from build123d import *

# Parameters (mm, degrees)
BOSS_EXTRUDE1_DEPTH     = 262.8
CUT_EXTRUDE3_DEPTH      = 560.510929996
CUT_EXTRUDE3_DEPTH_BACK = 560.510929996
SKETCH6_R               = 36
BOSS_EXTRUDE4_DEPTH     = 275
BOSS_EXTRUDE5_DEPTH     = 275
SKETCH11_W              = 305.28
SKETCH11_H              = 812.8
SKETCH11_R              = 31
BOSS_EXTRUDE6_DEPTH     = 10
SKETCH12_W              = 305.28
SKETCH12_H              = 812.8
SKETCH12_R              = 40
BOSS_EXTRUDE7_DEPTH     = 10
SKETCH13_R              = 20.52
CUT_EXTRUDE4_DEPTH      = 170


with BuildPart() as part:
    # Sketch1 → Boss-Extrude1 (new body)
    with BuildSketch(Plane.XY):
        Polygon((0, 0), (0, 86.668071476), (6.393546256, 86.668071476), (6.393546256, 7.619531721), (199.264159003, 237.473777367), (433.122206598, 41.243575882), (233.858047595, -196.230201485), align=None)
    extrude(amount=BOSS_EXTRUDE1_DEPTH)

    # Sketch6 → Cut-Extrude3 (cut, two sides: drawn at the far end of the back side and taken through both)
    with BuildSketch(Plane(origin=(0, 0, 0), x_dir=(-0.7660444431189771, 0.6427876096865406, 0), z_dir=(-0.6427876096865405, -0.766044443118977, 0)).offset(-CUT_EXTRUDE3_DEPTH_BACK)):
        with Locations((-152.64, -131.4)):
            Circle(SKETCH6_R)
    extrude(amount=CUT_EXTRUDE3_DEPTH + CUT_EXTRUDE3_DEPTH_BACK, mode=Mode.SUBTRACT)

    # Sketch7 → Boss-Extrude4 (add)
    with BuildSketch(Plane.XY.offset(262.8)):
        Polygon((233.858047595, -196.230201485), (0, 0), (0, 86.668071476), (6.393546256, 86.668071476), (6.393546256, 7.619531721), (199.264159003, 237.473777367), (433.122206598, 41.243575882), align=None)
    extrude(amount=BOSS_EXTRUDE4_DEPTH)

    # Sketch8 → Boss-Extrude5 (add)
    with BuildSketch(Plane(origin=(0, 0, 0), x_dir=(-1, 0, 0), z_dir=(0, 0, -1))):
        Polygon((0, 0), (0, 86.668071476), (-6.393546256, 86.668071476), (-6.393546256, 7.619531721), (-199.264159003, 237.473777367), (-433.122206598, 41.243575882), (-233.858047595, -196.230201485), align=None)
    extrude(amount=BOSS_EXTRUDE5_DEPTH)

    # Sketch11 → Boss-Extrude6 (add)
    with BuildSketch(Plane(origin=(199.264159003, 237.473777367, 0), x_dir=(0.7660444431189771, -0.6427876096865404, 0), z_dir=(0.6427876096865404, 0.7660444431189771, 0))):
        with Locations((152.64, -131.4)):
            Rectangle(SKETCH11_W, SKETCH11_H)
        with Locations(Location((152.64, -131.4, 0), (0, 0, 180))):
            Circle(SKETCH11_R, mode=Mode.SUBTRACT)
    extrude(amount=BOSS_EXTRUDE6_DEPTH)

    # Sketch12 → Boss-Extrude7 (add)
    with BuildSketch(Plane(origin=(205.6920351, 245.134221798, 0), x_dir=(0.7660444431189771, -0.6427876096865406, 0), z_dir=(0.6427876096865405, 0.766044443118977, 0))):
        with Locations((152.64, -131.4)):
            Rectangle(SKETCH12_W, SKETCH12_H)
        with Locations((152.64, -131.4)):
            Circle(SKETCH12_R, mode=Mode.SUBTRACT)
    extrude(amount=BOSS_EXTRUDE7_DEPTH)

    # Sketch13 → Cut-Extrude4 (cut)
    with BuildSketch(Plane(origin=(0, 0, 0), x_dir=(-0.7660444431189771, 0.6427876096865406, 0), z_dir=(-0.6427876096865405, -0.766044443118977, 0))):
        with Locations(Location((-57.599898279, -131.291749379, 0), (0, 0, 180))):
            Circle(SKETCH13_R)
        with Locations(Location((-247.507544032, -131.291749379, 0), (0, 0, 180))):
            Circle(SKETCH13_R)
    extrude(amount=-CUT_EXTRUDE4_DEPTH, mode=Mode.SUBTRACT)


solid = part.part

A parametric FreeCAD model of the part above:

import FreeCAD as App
import Part
import Sketcher

V = App.Vector
Q = App.Units.Quantity


def add_polygon(sketch, points):
    """Adds a closed chain of lines whose ends are joined by coincident constraints."""
    first, n = sketch.GeometryCount, len(points)
    for a, b in zip(points, points[1:] + points[:1]):
        sketch.addGeometry(Part.LineSegment(App.Vector(*a, 0), App.Vector(*b, 0)), False)
    for i in range(n):
        sketch.addConstraint(Sketcher.Constraint("Coincident", first + i, 2, first + (i + 1) % n, 1))

doc = App.newDocument("Part")
body = doc.addObject("PartDesign::Body", "Body")

# Sketch on XY plane
sketch1 = doc.addObject("Sketcher::SketchObject", "Sketch")
body.addObject(sketch1)
sketch1.AttachmentSupport = (doc.XY_Plane, [""])
sketch1.MapMode = "FlatFace"
add_polygon(sketch1, [(0, 87), (0, 0), (234, -196), (433, 41), (199, 237), (6, 8), (6, 87)])  # lines 0-6
sketch1.addConstraint(Sketcher.Constraint("Vertical", 0))
sketch1.addConstraint(Sketcher.Constraint("Vertical", 5))
sketch1.addConstraint(Sketcher.Constraint("Horizontal", 6))
sketch1.addConstraint(Sketcher.Constraint("Coincident", 0, 2, -1, 1))
sketch1.addConstraint(Sketcher.Constraint("Perpendicular", 1, 2))
sketch1.addConstraint(Sketcher.Constraint("Perpendicular", 2, 3))
sketch1.addConstraint(Sketcher.Constraint("Perpendicular", 3, 4))
sketch1.addConstraint(Sketcher.Constraint("Equal", 1, 3))
sketch1.addConstraint(Sketcher.Constraint("Angle", 1, Q("-40 deg")))
sketch1.addConstraint(Sketcher.Constraint("Distance", 2, 310.0))
sketch1.addConstraint(Sketcher.Constraint("Distance", 1, 305.28))
sketch1.addConstraint(Sketcher.Constraint("DistanceY", 0, 2, 0, 1, 86.668071))
sketch1.addConstraint(Sketcher.Constraint("DistanceY", 5, 1, 5, 2, 79.04854))
pad1 = doc.addObject("PartDesign::Pad", "Pad")
body.addObject(pad1)
pad1.Profile = sketch1
pad1.Length = 262.8

# Sketch on an angled plane
sketch2 = doc.addObject("Sketcher::SketchObject", "Sketch001")
body.addObject(sketch2)
sketch2.Placement = App.Placement(V(0, 0, 0), App.Rotation(V(-0.766044443, 0.64278761, 0), V(0, 0, -1), V(-0.64278761, -0.766044443, 0), "ZXY"))
sketch2.addGeometry(Part.Circle(V(-153, -131, 0), V(0, 0, 1), 36), False)
sketch2.addConstraint(Sketcher.Constraint("Diameter", 0, 72.0))
sketch2.addConstraint(Sketcher.Constraint("DistanceY", 0, 3, -1, 1, 131.4))
sketch2.addConstraint(Sketcher.Constraint("DistanceX", 0, 3, -1, 1, 152.64))
pocket1 = doc.addObject("PartDesign::Pocket", "Pocket")
body.addObject(pocket1)
pocket1.Profile = sketch2
pocket1.Type = "ThroughAll"
pocket1.Midplane = True

# Sketch on XY plane
sketch3 = doc.addObject("Sketcher::SketchObject", "Sketch002")
body.addObject(sketch3)
sketch3.AttachmentSupport = (doc.XY_Plane, [""])
sketch3.MapMode = "FlatFace"
sketch3.AttachmentOffset = App.Placement(V(0, 0, 262.8), App.Rotation())
add_polygon(sketch3, [(0, 0), (234, -196), (433, 41), (199, 237), (6, 8), (6, 87), (0, 87)])  # lines 0-6
sketch3.addConstraint(Sketcher.Constraint("Vertical", 4))
sketch3.addConstraint(Sketcher.Constraint("Horizontal", 5))
sketch3.addConstraint(Sketcher.Constraint("Vertical", 6))
sketch3.addConstraint(Sketcher.Constraint("Coincident", 6, 2, -1, 1))
sketch3.addConstraint(Sketcher.Constraint("Perpendicular", 0, 1))
sketch3.addConstraint(Sketcher.Constraint("Perpendicular", 1, 2))
sketch3.addConstraint(Sketcher.Constraint("Perpendicular", 2, 3))
sketch3.addConstraint(Sketcher.Constraint("Equal", 0, 2))
sketch3.addConstraint(Sketcher.Constraint("Angle", 0, Q("-40 deg")))
sketch3.addConstraint(Sketcher.Constraint("Distance", 1, 310.0))
sketch3.addConstraint(Sketcher.Constraint("Distance", 0, 305.28))
sketch3.addConstraint(Sketcher.Constraint("DistanceY", 4, 1, 4, 2, 79.04854))
sketch3.addConstraint(Sketcher.Constraint("DistanceY", 6, 2, 6, 1, 86.668071))
pad2 = doc.addObject("PartDesign::Pad", "Pad001")
body.addObject(pad2)
pad2.Profile = sketch3
pad2.Length = 275

# Sketch on XY plane
sketch4 = doc.addObject("Sketcher::SketchObject", "Sketch003")
body.addObject(sketch4)
sketch4.AttachmentSupport = (doc.XY_Plane, [""])
sketch4.MapMode = "FlatFace"
add_polygon(sketch4, [(0, 0), (0, 87), (6, 87), (6, 8), (199, 237), (433, 41), (234, -196)])  # lines 0-6
sketch4.addConstraint(Sketcher.Constraint("Vertical", 0))
sketch4.addConstraint(Sketcher.Constraint("Horizontal", 1))
sketch4.addConstraint(Sketcher.Constraint("Vertical", 2))
sketch4.addConstraint(Sketcher.Constraint("Coincident", 6, 2, -1, 1))
sketch4.addConstraint(Sketcher.Constraint("Perpendicular", 3, 4))
sketch4.addConstraint(Sketcher.Constraint("Perpendicular", 4, 5))
sketch4.addConstraint(Sketcher.Constraint("Perpendicular", 5, 6))
sketch4.addConstraint(Sketcher.Constraint("Equal", 4, 6))
sketch4.addConstraint(Sketcher.Constraint("Angle", 3, Q("50 deg")))
sketch4.addConstraint(Sketcher.Constraint("Distance", 5, 310.0))
sketch4.addConstraint(Sketcher.Constraint("Distance", 4, 305.28))
sketch4.addConstraint(Sketcher.Constraint("DistanceY", 0, 1, 0, 2, 86.668071))
sketch4.addConstraint(Sketcher.Constraint("DistanceY", 2, 2, 2, 1, 79.04854))
pad3 = doc.addObject("PartDesign::Pad", "Pad002")
body.addObject(pad3)
pad3.Profile = sketch4
pad3.Length = 275
pad3.Reversed = True

# Sketch on an angled plane
sketch5 = doc.addObject("Sketcher::SketchObject", "Sketch004")
body.addObject(sketch5)
sketch5.Placement = App.Placement(V(199.264159, 237.473777, 0), App.Rotation(V(0.766044443, -0.64278761, 0), V(0, 0, -1), V(0.64278761, 0.766044443, 0), "ZXY"))
add_polygon(sketch5, [(0, 275), (0, -538), (305, -538), (305, 275)])  # lines 0-3
sketch5.addGeometry(Part.Circle(V(153, -131, 0), V(0, 0, 1), 31), False)  # 4
sketch5.addConstraint(Sketcher.Constraint("Vertical", 0))
sketch5.addConstraint(Sketcher.Constraint("Horizontal", 1))
sketch5.addConstraint(Sketcher.Constraint("Vertical", 2))
sketch5.addConstraint(Sketcher.Constraint("Horizontal", 3))
sketch5.addConstraint(Sketcher.Constraint("PointOnObject", 0, 2, -2))
sketch5.addConstraint(Sketcher.Constraint("Diameter", 4, 62.0))
sketch5.addConstraint(Sketcher.Constraint("DistanceY", 0, 2, 0, 1, 812.8))
sketch5.addConstraint(Sketcher.Constraint("DistanceY", -1, 1, 2, 2, 275.0))
sketch5.addConstraint(Sketcher.Constraint("DistanceX", 1, 1, 1, 2, 305.28))
sketch5.addConstraint(Sketcher.Constraint("DistanceY", 4, 3, -1, 1, 131.4))
sketch5.addConstraint(Sketcher.Constraint("DistanceX", -1, 1, 4, 3, 152.64))
pad4 = doc.addObject("PartDesign::Pad", "Pad003")
body.addObject(pad4)
pad4.Profile = sketch5
pad4.Length = 10

# Sketch on an angled plane
sketch6 = doc.addObject("Sketcher::SketchObject", "Sketch005")
body.addObject(sketch6)
sketch6.Placement = App.Placement(V(205.692035, 245.134222, 0), App.Rotation(V(0.766044443, -0.64278761, 0), V(0, 0, -1), V(0.64278761, 0.766044443, 0), "ZXY"))
add_polygon(sketch6, [(0, 275), (0, -538), (305, -538), (305, 275)])  # lines 0-3
sketch6.addGeometry(Part.Circle(V(153, -131, 0), V(0, 0, 1), 40), False)  # 4
sketch6.addConstraint(Sketcher.Constraint("Vertical", 0))
sketch6.addConstraint(Sketcher.Constraint("Horizontal", 1))
sketch6.addConstraint(Sketcher.Constraint("Vertical", 2))
sketch6.addConstraint(Sketcher.Constraint("Horizontal", 3))
sketch6.addConstraint(Sketcher.Constraint("PointOnObject", 0, 2, -2))
sketch6.addConstraint(Sketcher.Constraint("Diameter", 4, 80.0))
sketch6.addConstraint(Sketcher.Constraint("DistanceY", 0, 2, 0, 1, 812.8))
sketch6.addConstraint(Sketcher.Constraint("DistanceY", -1, 1, 2, 2, 275.0))
sketch6.addConstraint(Sketcher.Constraint("DistanceX", 1, 1, 1, 2, 305.28))
sketch6.addConstraint(Sketcher.Constraint("DistanceY", 4, 3, -1, 1, 131.4))
sketch6.addConstraint(Sketcher.Constraint("DistanceX", -1, 1, 4, 3, 152.64))
pad5 = doc.addObject("PartDesign::Pad", "Pad004")
body.addObject(pad5)
pad5.Profile = sketch6
pad5.Length = 10

# Sketch on an angled plane
sketch7 = doc.addObject("Sketcher::SketchObject", "Sketch006")
body.addObject(sketch7)
sketch7.Placement = App.Placement(V(0, 0, 0), App.Rotation(V(-0.766044443, 0.64278761, 0), V(0, 0, -1), V(-0.64278761, -0.766044443, 0), "ZXY"))
sketch7.addGeometry(Part.Circle(V(-58, -131, 0), V(0, 0, 1), 21), False)
sketch7.addGeometry(Part.Circle(V(-248, -131, 0), V(0, 0, 1), 21), False)
sketch7.addConstraint(Sketcher.Constraint("Equal", 0, 1))
sketch7.addConstraint(Sketcher.Constraint("Horizontal", 0, 3, 1, 3))
sketch7.addConstraint(Sketcher.Constraint("Diameter", 0, 41.04))
sketch7.addConstraint(Sketcher.Constraint("DistanceX", 0, 3, -1, 1, 57.599898))
sketch7.addConstraint(Sketcher.Constraint("DistanceY", 0, 3, -1, 1, 131.291749))
sketch7.addConstraint(Sketcher.Constraint("DistanceX", 1, 3, -1, 1, 247.507544))
pocket2 = doc.addObject("PartDesign::Pocket", "Pocket001")
body.addObject(pocket2)
pocket2.Profile = sketch7
pocket2.Length = 170

doc.recompute()
